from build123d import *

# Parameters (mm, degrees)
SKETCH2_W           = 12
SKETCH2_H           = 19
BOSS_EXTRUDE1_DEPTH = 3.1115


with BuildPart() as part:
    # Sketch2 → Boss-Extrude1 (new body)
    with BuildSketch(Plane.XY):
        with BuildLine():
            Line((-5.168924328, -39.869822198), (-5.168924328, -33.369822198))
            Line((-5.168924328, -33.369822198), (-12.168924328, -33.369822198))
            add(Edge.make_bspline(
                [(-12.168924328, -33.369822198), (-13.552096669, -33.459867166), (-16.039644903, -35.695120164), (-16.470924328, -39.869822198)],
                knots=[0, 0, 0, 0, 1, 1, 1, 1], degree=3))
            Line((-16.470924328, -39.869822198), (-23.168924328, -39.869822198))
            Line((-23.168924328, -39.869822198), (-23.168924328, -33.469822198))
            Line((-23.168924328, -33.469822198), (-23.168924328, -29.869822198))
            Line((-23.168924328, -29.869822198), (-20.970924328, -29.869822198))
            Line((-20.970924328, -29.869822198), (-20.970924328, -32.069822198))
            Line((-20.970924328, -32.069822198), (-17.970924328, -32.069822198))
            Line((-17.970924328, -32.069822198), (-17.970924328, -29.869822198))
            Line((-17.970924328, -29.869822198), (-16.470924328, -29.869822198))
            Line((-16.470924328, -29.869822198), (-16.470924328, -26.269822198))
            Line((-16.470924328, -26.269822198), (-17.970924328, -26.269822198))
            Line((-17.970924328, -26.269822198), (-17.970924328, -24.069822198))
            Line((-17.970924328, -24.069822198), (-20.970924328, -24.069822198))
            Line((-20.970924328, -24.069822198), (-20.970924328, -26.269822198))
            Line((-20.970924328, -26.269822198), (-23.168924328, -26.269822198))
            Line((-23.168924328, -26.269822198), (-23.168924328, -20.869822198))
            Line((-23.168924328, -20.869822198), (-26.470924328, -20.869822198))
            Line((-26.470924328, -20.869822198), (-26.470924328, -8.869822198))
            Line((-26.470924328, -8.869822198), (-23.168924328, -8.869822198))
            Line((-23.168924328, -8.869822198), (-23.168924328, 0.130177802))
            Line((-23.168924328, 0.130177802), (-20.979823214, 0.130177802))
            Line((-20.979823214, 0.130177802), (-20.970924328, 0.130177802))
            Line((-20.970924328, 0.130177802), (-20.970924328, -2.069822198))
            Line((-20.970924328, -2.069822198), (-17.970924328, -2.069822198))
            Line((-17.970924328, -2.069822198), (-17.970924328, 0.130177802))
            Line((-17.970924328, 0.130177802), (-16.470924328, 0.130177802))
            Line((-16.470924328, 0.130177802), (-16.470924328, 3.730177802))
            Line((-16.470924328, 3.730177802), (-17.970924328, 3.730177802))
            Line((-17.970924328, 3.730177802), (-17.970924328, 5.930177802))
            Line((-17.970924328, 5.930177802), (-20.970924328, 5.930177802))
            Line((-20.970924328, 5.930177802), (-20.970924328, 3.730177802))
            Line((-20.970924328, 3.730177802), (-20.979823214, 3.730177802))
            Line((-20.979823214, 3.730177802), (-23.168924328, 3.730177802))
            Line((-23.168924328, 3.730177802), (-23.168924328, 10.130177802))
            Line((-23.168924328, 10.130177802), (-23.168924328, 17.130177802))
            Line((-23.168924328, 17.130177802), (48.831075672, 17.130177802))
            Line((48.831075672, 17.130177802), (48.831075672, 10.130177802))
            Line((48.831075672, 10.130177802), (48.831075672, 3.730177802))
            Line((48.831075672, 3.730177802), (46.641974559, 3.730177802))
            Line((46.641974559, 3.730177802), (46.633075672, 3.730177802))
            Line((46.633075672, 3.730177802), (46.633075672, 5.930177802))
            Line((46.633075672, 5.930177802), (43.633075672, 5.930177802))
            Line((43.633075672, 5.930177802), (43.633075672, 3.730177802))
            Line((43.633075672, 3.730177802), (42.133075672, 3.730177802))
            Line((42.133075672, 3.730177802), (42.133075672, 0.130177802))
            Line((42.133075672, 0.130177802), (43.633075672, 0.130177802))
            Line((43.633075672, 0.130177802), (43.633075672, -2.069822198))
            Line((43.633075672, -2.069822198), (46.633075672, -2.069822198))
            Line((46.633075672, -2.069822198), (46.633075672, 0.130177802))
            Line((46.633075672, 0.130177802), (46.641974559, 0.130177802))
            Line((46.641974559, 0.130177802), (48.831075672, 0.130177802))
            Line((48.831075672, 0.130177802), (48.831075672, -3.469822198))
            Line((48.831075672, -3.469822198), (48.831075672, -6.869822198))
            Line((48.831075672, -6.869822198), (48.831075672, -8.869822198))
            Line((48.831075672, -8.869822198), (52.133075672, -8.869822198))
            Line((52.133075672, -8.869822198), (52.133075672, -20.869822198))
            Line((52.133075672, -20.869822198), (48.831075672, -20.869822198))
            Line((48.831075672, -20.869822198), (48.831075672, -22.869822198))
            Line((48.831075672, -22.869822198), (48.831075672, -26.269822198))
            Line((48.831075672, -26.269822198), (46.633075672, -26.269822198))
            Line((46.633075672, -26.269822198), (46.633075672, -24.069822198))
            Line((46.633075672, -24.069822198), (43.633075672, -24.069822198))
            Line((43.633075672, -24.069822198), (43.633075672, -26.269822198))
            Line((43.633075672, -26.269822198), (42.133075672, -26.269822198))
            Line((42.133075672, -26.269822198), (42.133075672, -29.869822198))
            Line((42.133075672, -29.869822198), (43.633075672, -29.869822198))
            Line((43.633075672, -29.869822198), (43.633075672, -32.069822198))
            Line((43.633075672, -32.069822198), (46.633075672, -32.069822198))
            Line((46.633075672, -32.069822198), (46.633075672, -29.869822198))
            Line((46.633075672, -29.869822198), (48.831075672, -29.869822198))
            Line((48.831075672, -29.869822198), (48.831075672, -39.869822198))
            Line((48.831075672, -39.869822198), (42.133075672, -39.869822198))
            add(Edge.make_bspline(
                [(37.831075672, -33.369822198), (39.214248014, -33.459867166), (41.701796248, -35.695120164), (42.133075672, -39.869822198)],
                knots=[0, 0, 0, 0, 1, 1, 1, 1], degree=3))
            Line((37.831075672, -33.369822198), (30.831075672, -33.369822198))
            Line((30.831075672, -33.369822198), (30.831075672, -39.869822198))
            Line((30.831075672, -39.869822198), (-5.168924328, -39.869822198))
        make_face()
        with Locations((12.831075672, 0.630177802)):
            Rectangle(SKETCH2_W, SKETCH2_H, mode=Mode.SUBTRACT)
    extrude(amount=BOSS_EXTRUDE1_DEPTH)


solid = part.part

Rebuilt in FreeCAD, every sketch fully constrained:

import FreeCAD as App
import Part
import Sketcher

V = App.Vector

doc = App.newDocument("Part")
params = doc.addObject("Spreadsheet::Sheet", "Params")
for row, (alias, value) in enumerate([
    ("sketch1_width", "36 mm"),
    ("sketch1_width2", "3 mm"),
    ("sketch1_width3", "72 mm"),
    ("sketch1_width4", "12 mm"),
    ("sketch1_height", "10 mm"),
    ("pad1_length", "3.1115 mm"),
], start=1):
    params.set(f"A{row}", alias)
    params.set(f"B{row}", "=" + value)
    params.setAlias(f"B{row}", alias)

body = doc.addObject("PartDesign::Body", "Body")

sketch1 = doc.addObject("Sketcher::SketchObject", "Sketch")
body.addObject(sketch1)
sketch1.AttachmentSupport = (doc.XY_Plane, [""])
sketch1.MapMode = "FlatFace"
sketch1.addGeometry([
    Part.LineSegment(V(-5.168924, -33.369822, 0), V(-5.168924, -39.869822, 0)),
    Part.LineSegment(V(-5.168924, -39.869822, 0), V(30.831076, -39.869822, 0)),
    Part.LineSegment(V(30.831076, -39.869822, 0), V(30.831076, -33.369822, 0)),
    Part.LineSegment(V(30.831076, -33.369822, 0), V(37.831076, -33.369822, 0)),
    Part.BSplineCurve([V(37.831076, -33.369822, 0), V(39.214248, -33.459867, 0), V(41.701796, -35.69512, 0), V(42.133076, -39.869822, 0)], [4, 4], [0, 1], False, 3, [1, 1, 1, 1], False),
    Part.LineSegment(V(42.133076, -39.869822, 0), V(48.831076, -39.869822, 0)),
    Part.LineSegment(V(48.831076, -39.869822, 0), V(48.831076, -29.869822, 0)),
    Part.LineSegment(V(48.831076, -29.869822, 0), V(46.633076, -29.869822, 0)),
    Part.LineSegment(V(46.633076, -29.869822, 0), V(46.633076, -32.069822, 0)),
    Part.LineSegment(V(46.633076, -32.069822, 0), V(43.633076, -32.069822, 0)),
    Part.LineSegment(V(43.633076, -32.069822, 0), V(43.633076, -29.869822, 0)),
    Part.LineSegment(V(43.633076, -29.869822, 0), V(42.133076, -29.869822, 0)),
    Part.LineSegment(V(42.133076, -29.869822, 0), V(42.133076, -26.269822, 0)),
    Part.LineSegment(V(42.133076, -26.269822, 0), V(43.633076, -26.269822, 0)),
    Part.LineSegment(V(43.633076, -26.269822, 0), V(43.633076, -24.069822, 0)),
    Part.LineSegment(V(43.633076, -24.069822, 0), V(46.633076, -24.069822, 0)),
    Part.LineSegment(V(46.633076, -24.069822, 0), V(46.633076, -26.269822, 0)),
    Part.LineSegment(V(46.633076, -26.269822, 0), V(48.831076, -26.269822, 0)),
    Part.LineSegment(V(48.831076, -26.269822, 0), V(48.831076, -20.869822, 0)),
    Part.LineSegment(V(48.831076, -20.869822, 0), V(52.133076, -20.869822, 0)),
    Part.LineSegment(V(52.133076, -20.869822, 0), V(52.133076, -8.869822, 0)),
    Part.LineSegment(V(52.133076, -8.869822, 0), V(48.831076, -8.869822, 0)),
    Part.LineSegment(V(48.831076, -8.869822, 0), V(48.831076, 0.130178, 0)),
    Part.LineSegment(V(48.831076, 0.130178, 0), V(46.633076, 0.130178, 0)),
    Part.LineSegment(V(46.633076, 0.130178, 0), V(46.633076, -2.069822, 0)),
    Part.LineSegment(V(46.633076, -2.069822, 0), V(43.633076, -2.069822, 0)),
    Part.LineSegment(V(43.633076, -2.069822, 0), V(43.633076, 0.130178, 0)),
    Part.LineSegment(V(43.633076, 0.130178, 0), V(42.133076, 0.130178, 0)),
    Part.LineSegment(V(42.133076, 0.130178, 0), V(42.133076, 3.730178, 0)),
    Part.LineSegment(V(42.133076, 3.730178, 0), V(43.633076, 3.730178, 0)),
    Part.LineSegment(V(43.633076, 3.730178, 0), V(43.633076, 5.930178, 0)),
    Part.LineSegment(V(43.633076, 5.930178, 0), V(46.633076, 5.930178, 0)),
    Part.LineSegment(V(46.633076, 5.930178, 0), V(46.633076, 3.730178, 0)),
    Part.LineSegment(V(46.633076, 3.730178, 0), V(48.831076, 3.730178, 0)),
    Part.LineSegment(V(48.831076, 3.730178, 0), V(48.831076, 17.130178, 0)),
    Part.LineSegment(V(48.831076, 17.130178, 0), V(-23.168924, 17.130178, 0)),
    Part.LineSegment(V(-23.168924, 17.130178, 0), V(-23.168924, 3.730178, 0)),
    Part.LineSegment(V(-23.168924, 3.730178, 0), V(-20.970924, 3.730178, 0)),
    Part.LineSegment(V(-20.970924, 3.730178, 0), V(-20.970924, 5.930178, 0)),
    Part.LineSegment(V(-20.970924, 5.930178, 0), V(-17.970924, 5.930178, 0)),
    Part.LineSegment(V(-17.970924, 5.930178, 0), V(-17.970924, 3.730178, 0)),
    Part.LineSegment(V(-17.970924, 3.730178, 0), V(-16.470924, 3.730178, 0)),
    Part.LineSegment(V(-16.470924, 3.730178, 0), V(-16.470924, 0.130178, 0)),
    Part.LineSegment(V(-16.470924, 0.130178, 0), V(-17.970924, 0.130178, 0)),
    Part.LineSegment(V(-17.970924, 0.130178, 0), V(-17.970924, -2.069822, 0)),
    Part.LineSegment(V(-17.970924, -2.069822, 0), V(-20.970924, -2.069822, 0)),
    Part.LineSegment(V(-20.970924, -2.069822, 0), V(-20.970924, 0.130178, 0)),
    Part.LineSegment(V(-20.970924, 0.130178, 0), V(-23.168924, 0.130178, 0)),
    Part.LineSegment(V(-23.168924, 0.130178, 0), V(-23.168924, -8.869822, 0)),
    Part.LineSegment(V(-23.168924, -8.869822, 0), V(-26.470924, -8.869822, 0)),
    Part.LineSegment(V(-26.470924, -8.869822, 0), V(-26.470924, -20.869822, 0)),
    Part.LineSegment(V(-26.470924, -20.869822, 0), V(-23.168924, -20.869822, 0)),
    Part.LineSegment(V(-23.168924, -20.869822, 0), V(-23.168924, -26.269822, 0)),
    Part.LineSegment(V(-23.168924, -26.269822, 0), V(-20.970924, -26.269822, 0)),
    Part.LineSegment(V(-20.970924, -26.269822, 0), V(-20.970924, -24.069822, 0)),
    Part.LineSegment(V(-20.970924, -24.069822, 0), V(-17.970924, -24.069822, 0)),
    Part.LineSegment(V(-17.970924, -24.069822, 0), V(-17.970924, -26.269822, 0)),
    Part.LineSegment(V(-17.970924, -26.269822, 0), V(-16.470924, -26.269822, 0)),
    Part.LineSegment(V(-16.470924, -26.269822, 0), V(-16.470924, -29.869822, 0)),
    Part.LineSegment(V(-16.470924, -29.869822, 0), V(-17.970924, -29.869822, 0)),
    Part.LineSegment(V(-17.970924, -29.869822, 0), V(-17.970924, -32.069822, 0)),
    Part.LineSegment(V(-17.970924, -32.069822, 0), V(-20.970924, -32.069822, 0)),
    Part.LineSegment(V(-20.970924, -32.069822, 0), V(-20.970924, -29.869822, 0)),
    Part.LineSegment(V(-20.970924, -29.869822, 0), V(-23.168924, -29.869822, 0)),
    Part.LineSegment(V(-23.168924, -29.869822, 0), V(-23.168924, -39.869822, 0)),
    Part.LineSegment(V(-23.168924, -39.869822, 0), V(-16.470924, -39.869822, 0)),
    Part.BSplineCurve([V(-12.168924, -33.369822, 0), V(-13.552097, -33.459867, 0), V(-16.039645, -35.69512, 0), V(-16.470924, -39.869822, 0)], [4, 4], [0, 1], False, 3, [1, 1, 1, 1], False),
    Part.LineSegment(V(-12.168924, -33.369822, 0), V(-5.168924, -33.369822, 0)),
    Part.LineSegment(V(6.831076, -8.869822, 0), V(6.831076, 10.130178, 0)),
    Part.LineSegment(V(6.831076, 10.130178, 0), V(18.831076, 10.130178, 0)),
    Part.LineSegment(V(18.831076, 10.130178, 0), V(18.831076, -8.869822, 0)),
    Part.LineSegment(V(18.831076, -8.869822, 0), V(6.831076, -8.869822, 0)),
], False)
sketch1.addConstraint([
    Sketcher.Constraint("Block", 4),
    Sketcher.Constraint("Block", 66),
    Sketcher.Constraint("Coincident", 0, 2, 1, 1),
    Sketcher.Constraint("Coincident", 1, 2, 2, 1),
    Sketcher.Constraint("Coincident", 2, 2, 3, 1),
    Sketcher.Constraint("Coincident", 3, 2, 4, 1),
    Sketcher.Constraint("Coincident", 4, 2, 5, 1),
    Sketcher.Constraint("Coincident", 5, 2, 6, 1),
    Sketcher.Constraint("Coincident", 6, 2, 7, 1),
    Sketcher.Constraint("Coincident", 7, 2, 8, 1),
    Sketcher.Constraint("Coincident", 8, 2, 9, 1),
    Sketcher.Constraint("Coincident", 9, 2, 10, 1),
    Sketcher.Constraint("Coincident", 10, 2, 11, 1),
    Sketcher.Constraint("Coincident", 11, 2, 12, 1),
    Sketcher.Constraint("Coincident", 12, 2, 13, 1),
    Sketcher.Constraint("Coincident", 13, 2, 14, 1),
    Sketcher.Constraint("Coincident", 14, 2, 15, 1),
    Sketcher.Constraint("Coincident", 15, 2, 16, 1),
    Sketcher.Constraint("Coincident", 16, 2, 17, 1),
    Sketcher.Constraint("Coincident", 17, 2, 18, 1),
    Sketcher.Constraint("Coincident", 18, 2, 19, 1),
    Sketcher.Constraint("Coincident", 19, 2, 20, 1),
    Sketcher.Constraint("Coincident", 20, 2, 21, 1),
    Sketcher.Constraint("Coincident", 21, 2, 22, 1),
    Sketcher.Constraint("Coincident", 22, 2, 23, 1),
    Sketcher.Constraint("Coincident", 23, 2, 24, 1),
    Sketcher.Constraint("Coincident", 24, 2, 25, 1),
    Sketcher.Constraint("Coincident", 25, 2, 26, 1),
    Sketcher.Constraint("Coincident", 26, 2, 27, 1),
    Sketcher.Constraint("Coincident", 27, 2, 28, 1),
    Sketcher.Constraint("Coincident", 28, 2, 29, 1),
    Sketcher.Constraint("Coincident", 29, 2, 30, 1),
    Sketcher.Constraint("Coincident", 30, 2, 31, 1),
    Sketcher.Constraint("Coincident", 31, 2, 32, 1),
    Sketcher.Constraint("Coincident", 32, 2, 33, 1),
    Sketcher.Constraint("Coincident", 33, 2, 34, 1),
    Sketcher.Constraint("Coincident", 34, 2, 35, 1),
    Sketcher.Constraint("Coincident", 35, 2, 36, 1),
    Sketcher.Constraint("Coincident", 36, 2, 37, 1),
    Sketcher.Constraint("Coincident", 37, 2, 38, 1),
    Sketcher.Constraint("Coincident", 38, 2, 39, 1),
    Sketcher.Constraint("Coincident", 39, 2, 40, 1),
    Sketcher.Constraint("Coincident", 40, 2, 41, 1),
    Sketcher.Constraint("Coincident", 41, 2, 42, 1),
    Sketcher.Constraint("Coincident", 42, 2, 43, 1),
    Sketcher.Constraint("Coincident", 43, 2, 44, 1),
    Sketcher.Constraint("Coincident", 44, 2, 45, 1),
    Sketcher.Constraint("Coincident", 45, 2, 46, 1),
    Sketcher.Constraint("Coincident", 46, 2, 47, 1),
    Sketcher.Constraint("Coincident", 47, 2, 48, 1),
    Sketcher.Constraint("Coincident", 48, 2, 49, 1),
    Sketcher.Constraint("Coincident", 49, 2, 50, 1),
    Sketcher.Constraint("Coincident", 50, 2, 51, 1),
    Sketcher.Constraint("Coincident", 51, 2, 52, 1),
    Sketcher.Constraint("Coincident", 52, 2, 53, 1),
    Sketcher.Constraint("Coincident", 53, 2, 54, 1),
    Sketcher.Constraint("Coincident", 54, 2, 55, 1),
    Sketcher.Constraint("Coincident", 55, 2, 56, 1),
    Sketcher.Constraint("Coincident", 56, 2, 57, 1),
    Sketcher.Constraint("Coincident", 57, 2, 58, 1),
    Sketcher.Constraint("Coincident", 58, 2, 59, 1),
    Sketcher.Constraint("Coincident", 59, 2, 60, 1),
    Sketcher.Constraint("Coincident", 60, 2, 61, 1),
    Sketcher.Constraint("Coincident", 61, 2, 62, 1),
    Sketcher.Constraint("Coincident", 62, 2, 63, 1),
    Sketcher.Constraint("Coincident", 63, 2, 64, 1),
    Sketcher.Constraint("Coincident", 64, 2, 65, 1),
    Sketcher.Constraint("Coincident", 65, 2, 66, 2),
    Sketcher.Constraint("Coincident", 66, 1, 67, 1),
    Sketcher.Constraint("Coincident", 67, 2, 0, 1),
    Sketcher.Constraint("Coincident", 68, 2, 69, 1),
    Sketcher.Constraint("Coincident", 69, 2, 70, 1),
    Sketcher.Constraint("Coincident", 70, 2, 71, 1),
    Sketcher.Constraint("Coincident", 71, 2, 68, 1),
    Sketcher.Constraint("Vertical", 0),
    Sketcher.Constraint("Horizontal", 1),
    Sketcher.Constraint("Vertical", 2),
    Sketcher.Constraint("Horizontal", 3),
    Sketcher.Constraint("Horizontal", 5),
    Sketcher.Constraint("Vertical", 6),
    Sketcher.Constraint("Horizontal", 7),
    Sketcher.Constraint("Vertical", 8),
    Sketcher.Constraint("Horizontal", 9),
    Sketcher.Constraint("Vertical", 10),
    Sketcher.Constraint("Horizontal", 11),
    Sketcher.Constraint("Vertical", 12),
    Sketcher.Constraint("Horizontal", 13),
    Sketcher.Constraint("Vertical", 14),
    Sketcher.Constraint("Horizontal", 15),
    Sketcher.Constraint("Vertical", 16),
    Sketcher.Constraint("Horizontal", 17),
    Sketcher.Constraint("Vertical", 18),
    Sketcher.Constraint("Horizontal", 19),
    Sketcher.Constraint("Vertical", 20),
    Sketcher.Constraint("Horizontal", 21),
    Sketcher.Constraint("Vertical", 22),
    Sketcher.Constraint("Horizontal", 23),
    Sketcher.Constraint("Vertical", 24),
    Sketcher.Constraint("Horizontal", 25),
    Sketcher.Constraint("Vertical", 26),
    Sketcher.Constraint("Horizontal", 27),
    Sketcher.Constraint("Vertical", 28),
    Sketcher.Constraint("Horizontal", 29),
    Sketcher.Constraint("Vertical", 30),
    Sketcher.Constraint("Horizontal", 31),
    Sketcher.Constraint("Vertical", 32),
    Sketcher.Constraint("Horizontal", 33),
    Sketcher.Constraint("Vertical", 34),
    Sketcher.Constraint("Horizontal", 35),
    Sketcher.Constraint("Vertical", 36),
    Sketcher.Constraint("Horizontal", 37),
    Sketcher.Constraint("Vertical", 38),
    Sketcher.Constraint("Horizontal", 39),
    Sketcher.Constraint("Vertical", 40),
    Sketcher.Constraint("Horizontal", 41),
    Sketcher.Constraint("Vertical", 42),
    Sketcher.Constraint("Horizontal", 43),
    Sketcher.Constraint("Vertical", 44),
    Sketcher.Constraint("Horizontal", 45),
    Sketcher.Constraint("Vertical", 46),
    Sketcher.Constraint("Horizontal", 47),
    Sketcher.Constraint("Vertical", 48),
    Sketcher.Constraint("Horizontal", 49),
    Sketcher.Constraint("Vertical", 50),
    Sketcher.Constraint("Horizontal", 51),
    Sketcher.Constraint("Vertical", 52),
    Sketcher.Constraint("Horizontal", 53),
    Sketcher.Constraint("Vertical", 54),
    Sketcher.Constraint("Horizontal", 55),
    Sketcher.Constraint("Vertical", 56),
    Sketcher.Constraint("Horizontal", 57),
    Sketcher.Constraint("Vertical", 58),
    Sketcher.Constraint("Horizontal", 59),
    Sketcher.Constraint("Vertical", 60),
    Sketcher.Constraint("Horizontal", 61),
    Sketcher.Constraint("Vertical", 62),
    Sketcher.Constraint("Horizontal", 63),
    Sketcher.Constraint("Vertical", 64),
    Sketcher.Constraint("Horizontal", 65),
    Sketcher.Constraint("Horizontal", 67),
    Sketcher.Constraint("Vertical", 68),
    Sketcher.Constraint("Horizontal", 69),
    Sketcher.Constraint("Vertical", 70),
    Sketcher.Constraint("Horizontal", 71),
    Sketcher.Constraint("Horizontal", 1, 2, 5, 2),
    Sketcher.Constraint("Horizontal", 7, 2, 10, 2),
    Sketcher.Constraint("Horizontal", 13, 2, 16, 2),
    Sketcher.Constraint("Horizontal", 23, 2, 26, 2),
    Sketcher.Constraint("Horizontal", 29, 2, 32, 2),
    Sketcher.Constraint("Horizontal", 33, 2, 36, 2),
    Sketcher.Constraint("Horizontal", 31, 2, 38, 2),
    Sketcher.Constraint("Horizontal", 37, 2, 40, 2),
    Sketcher.Constraint("Horizontal", 27, 2, 42, 2),
    Sketcher.Constraint("Horizontal", 25, 2, 44, 2),
    Sketcher.Constraint("Horizontal", 43, 2, 46, 2),
    Sketcher.Constraint("Horizontal", 21, 2, 48, 2),
    Sketcher.Constraint("Horizontal", 19, 2, 50, 2),
    Sketcher.Constraint("Horizontal", 17, 2, 52, 2),
    Sketcher.Constraint("Horizontal", 15, 2, 54, 2),
    Sketcher.Constraint("Horizontal", 53, 2, 56, 2),
    Sketcher.Constraint("Horizontal", 11, 2, 58, 2),
    Sketcher.Constraint("Horizontal", 9, 2, 60, 2),
    Sketcher.Constraint("Horizontal", 59, 2, 62, 2),
    Sketcher.Constraint("Horizontal", 49, 2, 70, 2),
    Sketcher.Constraint("Vertical", 10, 2, 13, 2),
    Sketcher.Constraint("Vertical", 8, 2, 15, 2),
    Sketcher.Constraint("Vertical", 6, 2, 17, 2),
    Sketcher.Constraint("Vertical", 18, 2, 21, 2),
    Sketcher.Constraint("Vertical", 16, 2, 23, 2),
    Sketcher.Constraint("Vertical", 14, 2, 25, 2),
    Sketcher.Constraint("Vertical", 12, 2, 27, 2),
    Sketcher.Constraint("Vertical", 26, 2, 29, 2),
    Sketcher.Constraint("Vertical", 24, 2, 31, 2),
    Sketcher.Constraint("Vertical", 22, 2, 33, 2),
    Sketcher.Constraint("Vertical", 40, 2, 43, 2),
    Sketcher.Constraint("Vertical", 38, 2, 45, 2),
    Sketcher.Constraint("Vertical", 36, 2, 47, 2),
    Sketcher.Constraint("Vertical", 48, 2, 51, 2),
    Sketcher.Constraint("Vertical", 46, 2, 53, 2),
    Sketcher.Constraint("Vertical", 44, 2, 55, 2),
    Sketcher.Constraint("Vertical", 42, 2, 57, 2),
    Sketcher.Constraint("Vertical", 56, 2, 59, 2),
    Sketcher.Constraint("Vertical", 54, 2, 61, 2),
    Sketcher.Constraint("Vertical", 52, 2, 63, 2),
    Sketcher.Constraint("Vertical", 58, 2, 65, 2),
    Sketcher.Constraint("Equal", 33, 37),
    Sketcher.Constraint("Equal", 31, 39),
    Sketcher.Constraint("Equal", 29, 41),
    Sketcher.Constraint("Equal", 21, 49),
    Sketcher.Constraint("Equal", 5, 65),
    Sketcher.Constraint("Equal", 3, 67),
    Sketcher.Constraint("Equal", 10, 14),
    Sketcher.Constraint("Equal", 71, 20),
    Sketcher.Constraint("Equal", 16, 24),
    Sketcher.Constraint("Equal", 12, 28),
    Sketcher.Constraint("Equal", 26, 30),
    Sketcher.Constraint("DistanceX", 1, 1, 1, 2, 36.0),
    Sketcher.Constraint("DistanceX", 9, 2, 9, 1, 3.0),
    Sketcher.Constraint("DistanceX", 35, 2, 35, 1, 72.0),
    Sketcher.Constraint("DistanceX", 69, 1, 69, 2, 12.0),
    Sketcher.Constraint("DistanceY", 6, 1, 6, 2, 10.0),
    Sketcher.Constraint("DistanceY", 22, 1, 22, 2, 9.0),
    Sketcher.Constraint("DistanceY", 68, 1, 68, 2, 19.0),
    Sketcher.Constraint("DistanceX", 11, 2, 11, 1, 1.5),
    Sketcher.Constraint("DistanceY", 8, 2, 8, 1, 2.2),
    Sketcher.Constraint("DistanceY", 12, 1, 12, 2, 3.6),
    Sketcher.Constraint("DistanceY", 18, 1, 18, 2, 5.4),
    Sketcher.Constraint("DistanceY", 34, 1, 34, 2, 13.4),
    Sketcher.Constraint("DistanceX", 19, 1, 19, 2, 3.302),
    Sketcher.Constraint("DistanceX", -1, 1, 68, 2, 6.831076),
])
sketch1.setExpression("Constraints[196]", "Params.sketch1_width")
sketch1.setExpression("Constraints[197]", "Params.sketch1_width2")
sketch1.setExpression("Constraints[198]", "Params.sketch1_width3")
sketch1.setExpression("Constraints[199]", "Params.sketch1_width4")
sketch1.setExpression("Constraints[200]", "Params.sketch1_height")
pad1 = doc.addObject("PartDesign::Pad", "Pad")
body.addObject(pad1)
pad1.Profile = sketch1
pad1.setExpression("Length", "Params.pad1_length")

doc.recompute()
